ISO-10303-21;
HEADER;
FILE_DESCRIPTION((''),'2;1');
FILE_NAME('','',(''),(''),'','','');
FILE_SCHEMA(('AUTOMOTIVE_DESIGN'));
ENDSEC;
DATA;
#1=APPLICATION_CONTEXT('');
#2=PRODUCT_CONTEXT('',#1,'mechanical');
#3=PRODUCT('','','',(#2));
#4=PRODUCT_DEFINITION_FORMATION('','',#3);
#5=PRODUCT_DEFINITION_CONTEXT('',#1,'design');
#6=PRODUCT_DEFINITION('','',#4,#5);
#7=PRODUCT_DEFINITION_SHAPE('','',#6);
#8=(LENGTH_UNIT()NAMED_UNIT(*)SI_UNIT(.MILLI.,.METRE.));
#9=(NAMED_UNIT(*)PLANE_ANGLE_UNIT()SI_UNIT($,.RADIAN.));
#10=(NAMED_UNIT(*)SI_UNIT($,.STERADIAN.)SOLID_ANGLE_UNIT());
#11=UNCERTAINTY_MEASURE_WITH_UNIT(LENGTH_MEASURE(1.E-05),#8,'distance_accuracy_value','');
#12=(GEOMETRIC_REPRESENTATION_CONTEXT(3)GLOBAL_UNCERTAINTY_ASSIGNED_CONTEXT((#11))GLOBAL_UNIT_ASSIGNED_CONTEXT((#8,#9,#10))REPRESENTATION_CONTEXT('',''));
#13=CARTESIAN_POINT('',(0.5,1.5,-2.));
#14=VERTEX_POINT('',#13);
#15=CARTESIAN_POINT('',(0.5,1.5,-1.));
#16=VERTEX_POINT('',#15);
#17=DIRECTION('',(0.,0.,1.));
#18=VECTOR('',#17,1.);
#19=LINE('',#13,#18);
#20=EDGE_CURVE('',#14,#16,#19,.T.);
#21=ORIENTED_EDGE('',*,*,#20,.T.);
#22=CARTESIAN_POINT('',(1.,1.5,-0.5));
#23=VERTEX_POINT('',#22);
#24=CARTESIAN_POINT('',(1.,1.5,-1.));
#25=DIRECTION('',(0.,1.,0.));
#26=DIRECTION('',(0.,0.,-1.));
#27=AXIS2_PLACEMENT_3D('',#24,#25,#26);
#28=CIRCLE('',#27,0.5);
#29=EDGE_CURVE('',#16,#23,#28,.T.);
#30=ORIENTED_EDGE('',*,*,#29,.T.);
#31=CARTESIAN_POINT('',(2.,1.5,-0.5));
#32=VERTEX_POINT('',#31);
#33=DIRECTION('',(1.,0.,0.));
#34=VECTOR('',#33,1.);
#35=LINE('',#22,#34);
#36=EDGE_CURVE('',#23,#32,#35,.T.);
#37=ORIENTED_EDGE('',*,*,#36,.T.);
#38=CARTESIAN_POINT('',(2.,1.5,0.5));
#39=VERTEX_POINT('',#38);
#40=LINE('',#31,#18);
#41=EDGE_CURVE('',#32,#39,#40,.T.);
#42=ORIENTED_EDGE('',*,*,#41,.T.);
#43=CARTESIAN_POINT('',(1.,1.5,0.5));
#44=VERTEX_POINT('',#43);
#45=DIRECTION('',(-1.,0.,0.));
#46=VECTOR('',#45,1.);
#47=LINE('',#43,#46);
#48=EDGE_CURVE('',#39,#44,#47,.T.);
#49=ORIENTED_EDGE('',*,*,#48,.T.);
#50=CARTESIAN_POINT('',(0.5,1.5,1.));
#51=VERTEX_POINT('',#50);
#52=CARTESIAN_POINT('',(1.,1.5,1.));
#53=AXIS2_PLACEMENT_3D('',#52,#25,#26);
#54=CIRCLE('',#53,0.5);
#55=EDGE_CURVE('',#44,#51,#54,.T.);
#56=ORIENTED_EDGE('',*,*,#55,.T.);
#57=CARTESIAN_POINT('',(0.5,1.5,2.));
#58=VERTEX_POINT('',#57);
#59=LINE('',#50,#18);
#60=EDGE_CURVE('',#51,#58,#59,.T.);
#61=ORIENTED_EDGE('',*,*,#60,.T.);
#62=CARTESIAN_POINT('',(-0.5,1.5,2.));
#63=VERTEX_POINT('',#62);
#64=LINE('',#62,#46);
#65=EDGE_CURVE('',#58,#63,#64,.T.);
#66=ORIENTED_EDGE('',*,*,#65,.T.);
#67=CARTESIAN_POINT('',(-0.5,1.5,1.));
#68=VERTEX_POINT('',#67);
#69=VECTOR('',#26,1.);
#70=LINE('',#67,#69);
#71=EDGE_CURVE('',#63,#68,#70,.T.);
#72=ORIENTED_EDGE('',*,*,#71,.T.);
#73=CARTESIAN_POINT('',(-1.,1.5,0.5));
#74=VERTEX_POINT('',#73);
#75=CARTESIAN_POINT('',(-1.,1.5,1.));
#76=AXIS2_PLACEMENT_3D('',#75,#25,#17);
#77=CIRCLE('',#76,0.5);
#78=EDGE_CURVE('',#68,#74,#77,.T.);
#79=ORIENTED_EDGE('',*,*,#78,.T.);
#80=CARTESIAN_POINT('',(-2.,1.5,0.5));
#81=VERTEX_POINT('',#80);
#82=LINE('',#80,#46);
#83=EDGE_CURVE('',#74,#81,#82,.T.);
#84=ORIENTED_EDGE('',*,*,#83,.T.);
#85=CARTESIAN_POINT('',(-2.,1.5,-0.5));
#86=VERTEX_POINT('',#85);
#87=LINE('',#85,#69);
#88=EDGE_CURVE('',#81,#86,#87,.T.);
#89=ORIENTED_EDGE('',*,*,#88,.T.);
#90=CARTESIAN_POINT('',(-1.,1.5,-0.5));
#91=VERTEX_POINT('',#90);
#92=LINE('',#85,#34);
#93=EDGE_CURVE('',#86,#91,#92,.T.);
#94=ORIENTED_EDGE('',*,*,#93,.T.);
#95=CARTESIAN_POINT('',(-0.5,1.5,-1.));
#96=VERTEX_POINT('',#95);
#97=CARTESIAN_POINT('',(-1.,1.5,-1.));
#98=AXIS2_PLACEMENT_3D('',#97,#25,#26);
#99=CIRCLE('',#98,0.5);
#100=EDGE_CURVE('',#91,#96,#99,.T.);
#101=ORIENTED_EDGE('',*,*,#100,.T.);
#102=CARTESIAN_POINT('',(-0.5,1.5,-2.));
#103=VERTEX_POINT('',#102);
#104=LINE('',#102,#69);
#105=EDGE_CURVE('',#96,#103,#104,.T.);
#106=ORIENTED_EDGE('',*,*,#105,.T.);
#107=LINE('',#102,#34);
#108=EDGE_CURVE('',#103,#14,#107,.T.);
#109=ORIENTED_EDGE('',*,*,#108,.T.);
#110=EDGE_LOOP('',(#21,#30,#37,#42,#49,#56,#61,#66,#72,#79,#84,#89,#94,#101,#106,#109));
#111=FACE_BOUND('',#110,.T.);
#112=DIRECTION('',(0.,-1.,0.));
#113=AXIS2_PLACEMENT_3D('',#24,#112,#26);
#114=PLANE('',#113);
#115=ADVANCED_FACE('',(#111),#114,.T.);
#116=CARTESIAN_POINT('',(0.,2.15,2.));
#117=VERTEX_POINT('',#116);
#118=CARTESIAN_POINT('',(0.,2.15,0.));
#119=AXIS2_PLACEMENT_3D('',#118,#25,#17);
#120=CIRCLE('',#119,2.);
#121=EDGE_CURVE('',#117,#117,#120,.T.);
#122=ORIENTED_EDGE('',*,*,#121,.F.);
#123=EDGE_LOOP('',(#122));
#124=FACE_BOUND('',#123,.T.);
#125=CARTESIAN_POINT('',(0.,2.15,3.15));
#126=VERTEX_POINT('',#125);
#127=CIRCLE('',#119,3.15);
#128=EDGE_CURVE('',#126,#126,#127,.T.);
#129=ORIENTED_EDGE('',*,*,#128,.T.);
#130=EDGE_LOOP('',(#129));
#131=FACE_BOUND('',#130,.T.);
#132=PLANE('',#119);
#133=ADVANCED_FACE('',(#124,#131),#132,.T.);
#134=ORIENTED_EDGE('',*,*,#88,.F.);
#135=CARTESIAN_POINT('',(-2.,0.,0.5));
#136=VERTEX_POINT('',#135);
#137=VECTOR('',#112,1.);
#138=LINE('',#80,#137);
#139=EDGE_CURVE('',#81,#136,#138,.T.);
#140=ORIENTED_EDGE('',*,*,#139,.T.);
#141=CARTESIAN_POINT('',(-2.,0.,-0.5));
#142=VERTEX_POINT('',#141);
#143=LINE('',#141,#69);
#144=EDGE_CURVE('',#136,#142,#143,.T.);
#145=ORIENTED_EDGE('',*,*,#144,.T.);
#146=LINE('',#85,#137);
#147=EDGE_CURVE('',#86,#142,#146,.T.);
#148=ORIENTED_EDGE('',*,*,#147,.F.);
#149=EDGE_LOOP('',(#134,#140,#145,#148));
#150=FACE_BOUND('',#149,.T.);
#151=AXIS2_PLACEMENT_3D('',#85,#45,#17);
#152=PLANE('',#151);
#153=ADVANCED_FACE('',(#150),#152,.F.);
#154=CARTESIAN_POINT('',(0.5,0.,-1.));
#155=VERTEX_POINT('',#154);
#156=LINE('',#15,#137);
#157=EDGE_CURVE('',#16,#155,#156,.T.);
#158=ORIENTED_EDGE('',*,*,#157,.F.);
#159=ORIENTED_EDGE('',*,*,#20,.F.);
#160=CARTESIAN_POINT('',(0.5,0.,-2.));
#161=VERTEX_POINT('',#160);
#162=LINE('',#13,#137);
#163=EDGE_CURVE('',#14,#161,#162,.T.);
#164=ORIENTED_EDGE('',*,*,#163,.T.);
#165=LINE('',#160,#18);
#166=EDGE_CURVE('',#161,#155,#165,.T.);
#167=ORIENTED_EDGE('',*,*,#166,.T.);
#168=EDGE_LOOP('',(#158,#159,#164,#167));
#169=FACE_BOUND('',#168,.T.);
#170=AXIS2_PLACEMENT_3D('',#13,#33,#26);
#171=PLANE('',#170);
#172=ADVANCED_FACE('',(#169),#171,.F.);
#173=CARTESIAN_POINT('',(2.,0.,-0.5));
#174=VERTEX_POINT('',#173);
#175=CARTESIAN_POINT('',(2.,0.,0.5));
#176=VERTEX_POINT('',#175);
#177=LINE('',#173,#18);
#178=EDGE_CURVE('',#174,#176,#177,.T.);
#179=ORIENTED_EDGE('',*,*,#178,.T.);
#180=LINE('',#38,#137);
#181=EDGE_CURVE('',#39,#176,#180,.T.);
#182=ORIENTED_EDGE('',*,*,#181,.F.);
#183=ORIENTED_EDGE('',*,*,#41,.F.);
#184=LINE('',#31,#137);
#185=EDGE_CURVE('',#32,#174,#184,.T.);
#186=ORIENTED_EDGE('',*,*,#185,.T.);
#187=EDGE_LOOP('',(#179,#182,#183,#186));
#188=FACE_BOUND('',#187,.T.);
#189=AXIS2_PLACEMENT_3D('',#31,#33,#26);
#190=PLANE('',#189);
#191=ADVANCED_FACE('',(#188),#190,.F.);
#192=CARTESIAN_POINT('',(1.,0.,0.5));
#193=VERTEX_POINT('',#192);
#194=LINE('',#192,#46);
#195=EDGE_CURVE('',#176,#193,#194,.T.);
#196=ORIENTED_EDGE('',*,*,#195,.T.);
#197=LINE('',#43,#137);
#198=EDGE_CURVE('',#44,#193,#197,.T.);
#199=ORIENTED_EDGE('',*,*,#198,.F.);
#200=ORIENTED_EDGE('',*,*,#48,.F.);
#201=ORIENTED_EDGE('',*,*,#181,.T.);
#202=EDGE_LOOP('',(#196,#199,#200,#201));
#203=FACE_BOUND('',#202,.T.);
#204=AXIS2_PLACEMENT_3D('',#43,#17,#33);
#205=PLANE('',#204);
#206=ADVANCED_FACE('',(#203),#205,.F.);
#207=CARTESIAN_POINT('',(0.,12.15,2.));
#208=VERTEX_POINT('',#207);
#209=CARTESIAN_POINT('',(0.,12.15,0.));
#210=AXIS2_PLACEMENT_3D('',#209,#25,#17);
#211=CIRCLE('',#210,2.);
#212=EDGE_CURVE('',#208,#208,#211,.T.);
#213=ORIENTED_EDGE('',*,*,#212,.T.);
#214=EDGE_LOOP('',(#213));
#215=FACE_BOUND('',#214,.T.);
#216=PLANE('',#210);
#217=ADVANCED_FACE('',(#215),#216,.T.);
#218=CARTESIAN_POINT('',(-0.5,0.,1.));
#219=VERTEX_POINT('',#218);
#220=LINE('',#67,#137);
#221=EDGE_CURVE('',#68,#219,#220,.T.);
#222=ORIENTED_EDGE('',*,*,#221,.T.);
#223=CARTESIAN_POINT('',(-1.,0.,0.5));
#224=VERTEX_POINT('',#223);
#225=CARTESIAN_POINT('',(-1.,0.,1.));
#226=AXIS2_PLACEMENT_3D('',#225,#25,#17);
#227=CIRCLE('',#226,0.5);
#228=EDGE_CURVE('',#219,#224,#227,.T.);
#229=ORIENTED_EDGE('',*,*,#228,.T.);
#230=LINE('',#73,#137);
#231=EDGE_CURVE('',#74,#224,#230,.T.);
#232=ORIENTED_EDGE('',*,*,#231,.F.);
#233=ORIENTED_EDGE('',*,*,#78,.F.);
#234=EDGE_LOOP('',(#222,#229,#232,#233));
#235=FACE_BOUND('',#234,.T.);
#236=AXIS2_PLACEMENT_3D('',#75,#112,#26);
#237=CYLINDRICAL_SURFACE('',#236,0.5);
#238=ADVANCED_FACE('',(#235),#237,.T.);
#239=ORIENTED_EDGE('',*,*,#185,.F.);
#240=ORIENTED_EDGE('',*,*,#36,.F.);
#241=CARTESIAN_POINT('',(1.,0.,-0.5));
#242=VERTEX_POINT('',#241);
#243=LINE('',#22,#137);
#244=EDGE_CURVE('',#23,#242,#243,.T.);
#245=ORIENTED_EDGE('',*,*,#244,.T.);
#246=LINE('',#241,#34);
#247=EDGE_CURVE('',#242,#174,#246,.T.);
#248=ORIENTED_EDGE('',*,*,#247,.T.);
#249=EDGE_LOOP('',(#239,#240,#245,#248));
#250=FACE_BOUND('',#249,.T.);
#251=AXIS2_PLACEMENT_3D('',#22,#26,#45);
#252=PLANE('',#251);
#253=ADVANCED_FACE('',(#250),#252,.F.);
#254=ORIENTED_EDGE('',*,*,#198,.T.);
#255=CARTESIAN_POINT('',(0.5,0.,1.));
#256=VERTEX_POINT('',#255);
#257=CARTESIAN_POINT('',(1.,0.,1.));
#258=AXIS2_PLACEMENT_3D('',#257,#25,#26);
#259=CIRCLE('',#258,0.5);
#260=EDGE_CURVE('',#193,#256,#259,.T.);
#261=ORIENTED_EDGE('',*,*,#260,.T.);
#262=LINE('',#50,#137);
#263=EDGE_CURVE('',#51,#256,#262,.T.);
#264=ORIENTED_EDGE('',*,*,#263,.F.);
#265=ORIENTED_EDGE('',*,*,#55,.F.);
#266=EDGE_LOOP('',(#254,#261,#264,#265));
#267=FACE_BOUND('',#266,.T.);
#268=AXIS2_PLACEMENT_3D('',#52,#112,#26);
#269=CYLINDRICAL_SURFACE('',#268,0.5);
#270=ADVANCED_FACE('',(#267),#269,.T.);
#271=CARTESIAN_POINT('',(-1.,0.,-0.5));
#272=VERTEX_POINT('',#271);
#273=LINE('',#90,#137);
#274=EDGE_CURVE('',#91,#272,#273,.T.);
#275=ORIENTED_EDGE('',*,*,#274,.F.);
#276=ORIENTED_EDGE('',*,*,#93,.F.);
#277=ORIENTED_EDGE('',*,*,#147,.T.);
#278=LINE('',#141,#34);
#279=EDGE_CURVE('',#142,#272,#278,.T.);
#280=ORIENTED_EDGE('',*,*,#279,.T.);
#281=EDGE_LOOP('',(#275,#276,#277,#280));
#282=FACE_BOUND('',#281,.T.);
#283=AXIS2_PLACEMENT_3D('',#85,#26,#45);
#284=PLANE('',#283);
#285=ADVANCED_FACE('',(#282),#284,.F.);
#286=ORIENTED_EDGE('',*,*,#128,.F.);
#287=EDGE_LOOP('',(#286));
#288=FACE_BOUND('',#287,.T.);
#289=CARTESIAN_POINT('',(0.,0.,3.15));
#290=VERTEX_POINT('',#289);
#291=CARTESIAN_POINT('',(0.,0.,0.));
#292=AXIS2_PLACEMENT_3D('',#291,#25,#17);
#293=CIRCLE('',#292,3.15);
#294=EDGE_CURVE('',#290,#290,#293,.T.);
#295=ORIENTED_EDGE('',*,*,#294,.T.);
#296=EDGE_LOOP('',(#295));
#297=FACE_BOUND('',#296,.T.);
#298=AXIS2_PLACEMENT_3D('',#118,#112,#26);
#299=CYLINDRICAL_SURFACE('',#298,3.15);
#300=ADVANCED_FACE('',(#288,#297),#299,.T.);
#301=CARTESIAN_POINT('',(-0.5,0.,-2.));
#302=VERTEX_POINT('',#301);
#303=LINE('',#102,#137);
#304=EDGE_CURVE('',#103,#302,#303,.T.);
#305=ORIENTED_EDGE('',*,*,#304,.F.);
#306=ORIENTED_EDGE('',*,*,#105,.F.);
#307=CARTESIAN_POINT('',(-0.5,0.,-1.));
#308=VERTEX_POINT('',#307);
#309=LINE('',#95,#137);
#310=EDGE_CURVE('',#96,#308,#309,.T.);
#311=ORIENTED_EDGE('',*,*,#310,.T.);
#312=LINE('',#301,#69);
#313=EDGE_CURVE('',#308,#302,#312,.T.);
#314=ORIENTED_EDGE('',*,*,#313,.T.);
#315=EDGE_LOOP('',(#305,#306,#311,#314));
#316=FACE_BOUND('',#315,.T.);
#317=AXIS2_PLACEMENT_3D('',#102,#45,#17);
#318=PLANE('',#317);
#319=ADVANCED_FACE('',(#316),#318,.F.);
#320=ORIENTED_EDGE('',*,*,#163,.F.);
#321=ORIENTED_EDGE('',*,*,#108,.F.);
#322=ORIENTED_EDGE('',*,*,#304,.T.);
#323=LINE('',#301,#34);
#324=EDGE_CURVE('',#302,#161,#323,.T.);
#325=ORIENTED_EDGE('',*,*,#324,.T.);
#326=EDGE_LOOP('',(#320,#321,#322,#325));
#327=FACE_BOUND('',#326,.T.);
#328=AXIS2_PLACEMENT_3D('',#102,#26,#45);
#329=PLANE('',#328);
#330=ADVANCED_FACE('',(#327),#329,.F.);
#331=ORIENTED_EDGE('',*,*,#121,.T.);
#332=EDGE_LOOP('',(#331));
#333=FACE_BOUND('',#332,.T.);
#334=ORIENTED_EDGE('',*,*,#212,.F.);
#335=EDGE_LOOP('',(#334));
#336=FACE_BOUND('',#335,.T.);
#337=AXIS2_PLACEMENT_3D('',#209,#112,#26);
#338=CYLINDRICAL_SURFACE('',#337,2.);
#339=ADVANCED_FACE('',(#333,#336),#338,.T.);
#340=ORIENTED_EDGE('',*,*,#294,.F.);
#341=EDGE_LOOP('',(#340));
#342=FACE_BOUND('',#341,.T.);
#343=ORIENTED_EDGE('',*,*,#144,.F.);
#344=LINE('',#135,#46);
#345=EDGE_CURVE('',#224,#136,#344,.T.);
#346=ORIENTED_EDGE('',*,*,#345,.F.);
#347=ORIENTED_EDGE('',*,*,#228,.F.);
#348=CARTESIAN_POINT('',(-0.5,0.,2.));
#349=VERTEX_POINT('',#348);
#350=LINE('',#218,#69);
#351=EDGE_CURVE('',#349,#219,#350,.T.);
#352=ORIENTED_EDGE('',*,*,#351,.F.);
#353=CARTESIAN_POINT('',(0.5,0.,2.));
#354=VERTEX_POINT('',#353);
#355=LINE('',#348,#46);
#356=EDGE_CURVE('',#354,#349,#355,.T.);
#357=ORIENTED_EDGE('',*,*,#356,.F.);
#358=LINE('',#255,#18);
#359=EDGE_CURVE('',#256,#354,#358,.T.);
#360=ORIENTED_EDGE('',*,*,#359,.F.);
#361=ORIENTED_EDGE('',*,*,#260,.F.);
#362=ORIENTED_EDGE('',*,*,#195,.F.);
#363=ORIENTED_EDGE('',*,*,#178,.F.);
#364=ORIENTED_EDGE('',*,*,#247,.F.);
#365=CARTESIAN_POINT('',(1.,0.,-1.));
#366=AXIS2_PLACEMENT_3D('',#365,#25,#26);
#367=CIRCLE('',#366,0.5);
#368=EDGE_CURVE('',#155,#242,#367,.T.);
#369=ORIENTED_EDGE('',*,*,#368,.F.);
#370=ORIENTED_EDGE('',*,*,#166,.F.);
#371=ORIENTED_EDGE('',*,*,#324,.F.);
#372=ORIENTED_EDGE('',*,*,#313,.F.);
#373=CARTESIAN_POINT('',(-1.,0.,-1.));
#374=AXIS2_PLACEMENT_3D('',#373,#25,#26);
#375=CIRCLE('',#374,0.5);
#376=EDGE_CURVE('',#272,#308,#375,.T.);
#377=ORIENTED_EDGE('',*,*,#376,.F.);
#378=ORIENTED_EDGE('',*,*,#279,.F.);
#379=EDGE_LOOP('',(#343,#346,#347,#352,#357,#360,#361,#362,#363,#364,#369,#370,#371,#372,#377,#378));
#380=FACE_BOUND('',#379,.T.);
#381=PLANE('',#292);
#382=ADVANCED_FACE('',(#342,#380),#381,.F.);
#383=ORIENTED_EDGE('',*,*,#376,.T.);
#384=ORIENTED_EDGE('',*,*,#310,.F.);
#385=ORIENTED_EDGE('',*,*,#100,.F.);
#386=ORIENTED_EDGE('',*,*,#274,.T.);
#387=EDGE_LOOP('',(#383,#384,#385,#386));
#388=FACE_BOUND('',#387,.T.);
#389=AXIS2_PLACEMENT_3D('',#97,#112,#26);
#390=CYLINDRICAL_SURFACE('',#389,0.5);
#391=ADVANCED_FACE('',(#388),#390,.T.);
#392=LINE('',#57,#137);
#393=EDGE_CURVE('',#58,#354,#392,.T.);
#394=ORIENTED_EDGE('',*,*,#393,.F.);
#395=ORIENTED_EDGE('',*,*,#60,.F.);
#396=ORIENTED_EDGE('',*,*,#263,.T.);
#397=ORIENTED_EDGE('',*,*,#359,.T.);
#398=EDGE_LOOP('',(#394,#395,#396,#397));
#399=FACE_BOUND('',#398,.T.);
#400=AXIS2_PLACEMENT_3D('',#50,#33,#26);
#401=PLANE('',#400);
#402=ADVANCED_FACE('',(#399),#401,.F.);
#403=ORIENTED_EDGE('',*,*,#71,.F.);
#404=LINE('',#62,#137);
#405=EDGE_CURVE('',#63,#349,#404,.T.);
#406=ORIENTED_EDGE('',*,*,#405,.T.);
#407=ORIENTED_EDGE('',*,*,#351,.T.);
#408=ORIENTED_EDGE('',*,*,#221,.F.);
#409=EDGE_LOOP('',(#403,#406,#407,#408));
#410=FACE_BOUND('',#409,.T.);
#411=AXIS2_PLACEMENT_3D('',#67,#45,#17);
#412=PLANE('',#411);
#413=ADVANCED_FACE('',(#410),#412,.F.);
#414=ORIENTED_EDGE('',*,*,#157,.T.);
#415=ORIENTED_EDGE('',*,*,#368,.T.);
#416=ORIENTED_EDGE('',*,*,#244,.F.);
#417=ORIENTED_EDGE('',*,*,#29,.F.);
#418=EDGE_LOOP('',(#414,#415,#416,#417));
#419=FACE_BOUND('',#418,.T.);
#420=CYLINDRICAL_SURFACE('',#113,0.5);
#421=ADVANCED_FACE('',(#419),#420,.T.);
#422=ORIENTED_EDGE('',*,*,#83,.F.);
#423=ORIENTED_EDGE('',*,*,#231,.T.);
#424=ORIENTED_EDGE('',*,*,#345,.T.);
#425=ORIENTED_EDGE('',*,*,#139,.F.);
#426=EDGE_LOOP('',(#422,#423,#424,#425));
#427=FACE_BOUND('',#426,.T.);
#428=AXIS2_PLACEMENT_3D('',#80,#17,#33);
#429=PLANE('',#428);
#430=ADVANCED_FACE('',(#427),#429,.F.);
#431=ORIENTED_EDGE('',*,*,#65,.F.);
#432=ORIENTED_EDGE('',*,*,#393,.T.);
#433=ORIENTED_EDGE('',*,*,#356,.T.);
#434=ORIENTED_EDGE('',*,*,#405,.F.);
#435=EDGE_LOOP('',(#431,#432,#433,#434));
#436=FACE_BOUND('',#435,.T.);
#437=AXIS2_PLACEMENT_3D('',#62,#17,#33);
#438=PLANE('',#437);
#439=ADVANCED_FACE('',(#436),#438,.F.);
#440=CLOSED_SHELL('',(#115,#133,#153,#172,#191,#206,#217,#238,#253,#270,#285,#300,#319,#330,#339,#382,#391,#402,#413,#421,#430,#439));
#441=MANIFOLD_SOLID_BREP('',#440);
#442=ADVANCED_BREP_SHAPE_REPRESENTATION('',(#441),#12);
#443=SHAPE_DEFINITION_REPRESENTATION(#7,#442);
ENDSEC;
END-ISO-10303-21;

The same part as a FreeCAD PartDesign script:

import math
import FreeCAD as App
import Part
import Sketcher
from FreeCAD import Vector

doc = App.newDocument("Part")
body = doc.addObject("PartDesign::Body", "Body")

sketch1 = body.newObject("Sketcher::SketchObject", "Sketch")
sketch1.AttachmentSupport = (doc.getObject("XZ_Plane"), [""])
sketch1.MapMode = "FlatFace"
sketch1.addGeometry(Part.Circle(Vector(0, 0, 0), Vector(0, 0, 1), 3.15), False)
sketch1.addConstraint([
    Sketcher.Constraint("Coincident", 0, 3, -1, 1),
    Sketcher.Constraint("Diameter", 0, 6.3),
])
pad1 = body.newObject("PartDesign::Pad", "Pad")
pad1.Profile = sketch1
pad1.Length = 2.15
pad1.Reversed = True

sketch2 = body.newObject("Sketcher::SketchObject", "Sketch001")
sketch2.AttachmentSupport = (doc.getObject("XZ_Plane"), [""])
sketch2.MapMode = "FlatFace"
sketch2.AttachmentOffset = App.Placement(Vector(0, 0, -2.15), App.Rotation())
sketch2.addGeometry(Part.Circle(Vector(0, 0, 0), Vector(0, 0, 1), 2), False)
sketch2.addConstraint([
    Sketcher.Constraint("Coincident", 0, 3, -1, 1),
    Sketcher.Constraint("Diameter", 0, 4.0),
])
pad2 = body.newObject("PartDesign::Pad", "Pad001")
pad2.Profile = sketch2
pad2.Length = 10
pad2.Reversed = True

sketch3 = body.newObject("Sketcher::SketchObject", "Sketch002")
sketch3.AttachmentSupport = (doc.getObject("XZ_Plane"), [""])
sketch3.MapMode = "FlatFace"
sketch3.addGeometry([
    Part.LineSegment(Vector(-0.5, 2, 0), Vector(-0.5, 1, 0)),
    Part.ArcOfCircle(Part.Circle(Vector(-1, 1, 0), Vector(0, 0, 1), 0.5), math.radians(-90), math.radians(0)),
    Part.LineSegment(Vector(-1, 0.5, 0), Vector(-2, 0.5, 0)),
    Part.LineSegment(Vector(-2, 0.5, 0), Vector(-2, -0.5, 0)),
    Part.LineSegment(Vector(-2, -0.5, 0), Vector(-1, -0.5, 0)),
    Part.ArcOfCircle(Part.Circle(Vector(-1, -1, 0), Vector(0, 0, 1), 0.5), math.radians(0), math.radians(90)),
    Part.LineSegment(Vector(-0.5, -1, 0), Vector(-0.5, -2, 0)),
    Part.LineSegment(Vector(-0.5, -2, 0), Vector(0.5, -2, 0)),
    Part.LineSegment(Vector(0.5, -2, 0), Vector(0.5, -1, 0)),
    Part.ArcOfCircle(Part.Circle(Vector(1, -1, 0), Vector(0, 0, 1), 0.5), math.radians(90), math.radians(180)),
    Part.LineSegment(Vector(1, -0.5, 0), Vector(2, -0.5, 0)),
    Part.LineSegment(Vector(2, -0.5, 0), Vector(2, 0.5, 0)),
    Part.LineSegment(Vector(2, 0.5, 0), Vector(1, 0.5, 0)),
    Part.ArcOfCircle(Part.Circle(Vector(1, 1, 0), Vector(0, 0, 1), 0.5), math.radians(180), math.radians(270)),
    Part.LineSegment(Vector(0.5, 1, 0), Vector(0.5, 2, 0)),
    Part.LineSegment(Vector(0.5, 2, 0), Vector(-0.5, 2, 0)),
], False)
sketch3.addConstraint([
    Sketcher.Constraint("Tangent", 0, 2, 1, 2),
    Sketcher.Constraint("Tangent", 1, 1, 2, 1),
    Sketcher.Constraint("Coincident", 2, 2, 3, 1),
    Sketcher.Constraint("Coincident", 3, 2, 4, 1),
    Sketcher.Constraint("Tangent", 4, 2, 5, 2),
    Sketcher.Constraint("Tangent", 5, 1, 6, 1),
    Sketcher.Constraint("Coincident", 6, 2, 7, 1),
    Sketcher.Constraint("Coincident", 7, 2, 8, 1),
    Sketcher.Constraint("Tangent", 8, 2, 9, 2),
    Sketcher.Constraint("Tangent", 9, 1, 10, 1),
    Sketcher.Constraint("Coincident", 10, 2, 11, 1),
    Sketcher.Constraint("Coincident", 11, 2, 12, 1),
    Sketcher.Constraint("Tangent", 12, 2, 13, 2),
    Sketcher.Constraint("Tangent", 13, 1, 14, 1),
    Sketcher.Constraint("Coincident", 14, 2, 15, 1),
    Sketcher.Constraint("Coincident", 15, 2, 0, 1),
    Sketcher.Constraint("Vertical", 0),
    Sketcher.Constraint("Horizontal", 2),
    Sketcher.Constraint("Vertical", 3),
    Sketcher.Constraint("Horizontal", 4),
    Sketcher.Constraint("Vertical", 6),
    Sketcher.Constraint("Horizontal", 7),
    Sketcher.Constraint("Vertical", 8),
    Sketcher.Constraint("Horizontal", 10),
    Sketcher.Constraint("Vertical", 11),
    Sketcher.Constraint("Horizontal", 12),
    Sketcher.Constraint("Vertical", 14),
    Sketcher.Constraint("Horizontal", 15),
    Sketcher.Constraint("Equal", 1, 5),
    Sketcher.Constraint("Equal", 5, 9),
    Sketcher.Constraint("Equal", 9, 13),
    Sketcher.Constraint("Symmetric", 1, 3, 9, 3, -1, 1),
    Sketcher.Constraint("Symmetric", 5, 3, 13, 3, -1, 1),
    Sketcher.Constraint("Symmetric", 5, 3, 9, 3, -2),
    Sketcher.Constraint("Equal", 4, 7),
    Sketcher.Constraint("Equal", 7, 10),
    Sketcher.Constraint("Equal", 15, 0),
    Sketcher.Constraint("Equal", 0, 3),
    Sketcher.Constraint("Equal", 3, 6),
    Sketcher.Constraint("Radius", 1, 0.5),
    Sketcher.Constraint("DistanceX", 2, 2, 2, 1, 1.0),
])
pocket1 = body.newObject("PartDesign::Pocket", "Pocket")
pocket1.Profile = sketch3
pocket1.Length = 1.5

doc.recompute()
